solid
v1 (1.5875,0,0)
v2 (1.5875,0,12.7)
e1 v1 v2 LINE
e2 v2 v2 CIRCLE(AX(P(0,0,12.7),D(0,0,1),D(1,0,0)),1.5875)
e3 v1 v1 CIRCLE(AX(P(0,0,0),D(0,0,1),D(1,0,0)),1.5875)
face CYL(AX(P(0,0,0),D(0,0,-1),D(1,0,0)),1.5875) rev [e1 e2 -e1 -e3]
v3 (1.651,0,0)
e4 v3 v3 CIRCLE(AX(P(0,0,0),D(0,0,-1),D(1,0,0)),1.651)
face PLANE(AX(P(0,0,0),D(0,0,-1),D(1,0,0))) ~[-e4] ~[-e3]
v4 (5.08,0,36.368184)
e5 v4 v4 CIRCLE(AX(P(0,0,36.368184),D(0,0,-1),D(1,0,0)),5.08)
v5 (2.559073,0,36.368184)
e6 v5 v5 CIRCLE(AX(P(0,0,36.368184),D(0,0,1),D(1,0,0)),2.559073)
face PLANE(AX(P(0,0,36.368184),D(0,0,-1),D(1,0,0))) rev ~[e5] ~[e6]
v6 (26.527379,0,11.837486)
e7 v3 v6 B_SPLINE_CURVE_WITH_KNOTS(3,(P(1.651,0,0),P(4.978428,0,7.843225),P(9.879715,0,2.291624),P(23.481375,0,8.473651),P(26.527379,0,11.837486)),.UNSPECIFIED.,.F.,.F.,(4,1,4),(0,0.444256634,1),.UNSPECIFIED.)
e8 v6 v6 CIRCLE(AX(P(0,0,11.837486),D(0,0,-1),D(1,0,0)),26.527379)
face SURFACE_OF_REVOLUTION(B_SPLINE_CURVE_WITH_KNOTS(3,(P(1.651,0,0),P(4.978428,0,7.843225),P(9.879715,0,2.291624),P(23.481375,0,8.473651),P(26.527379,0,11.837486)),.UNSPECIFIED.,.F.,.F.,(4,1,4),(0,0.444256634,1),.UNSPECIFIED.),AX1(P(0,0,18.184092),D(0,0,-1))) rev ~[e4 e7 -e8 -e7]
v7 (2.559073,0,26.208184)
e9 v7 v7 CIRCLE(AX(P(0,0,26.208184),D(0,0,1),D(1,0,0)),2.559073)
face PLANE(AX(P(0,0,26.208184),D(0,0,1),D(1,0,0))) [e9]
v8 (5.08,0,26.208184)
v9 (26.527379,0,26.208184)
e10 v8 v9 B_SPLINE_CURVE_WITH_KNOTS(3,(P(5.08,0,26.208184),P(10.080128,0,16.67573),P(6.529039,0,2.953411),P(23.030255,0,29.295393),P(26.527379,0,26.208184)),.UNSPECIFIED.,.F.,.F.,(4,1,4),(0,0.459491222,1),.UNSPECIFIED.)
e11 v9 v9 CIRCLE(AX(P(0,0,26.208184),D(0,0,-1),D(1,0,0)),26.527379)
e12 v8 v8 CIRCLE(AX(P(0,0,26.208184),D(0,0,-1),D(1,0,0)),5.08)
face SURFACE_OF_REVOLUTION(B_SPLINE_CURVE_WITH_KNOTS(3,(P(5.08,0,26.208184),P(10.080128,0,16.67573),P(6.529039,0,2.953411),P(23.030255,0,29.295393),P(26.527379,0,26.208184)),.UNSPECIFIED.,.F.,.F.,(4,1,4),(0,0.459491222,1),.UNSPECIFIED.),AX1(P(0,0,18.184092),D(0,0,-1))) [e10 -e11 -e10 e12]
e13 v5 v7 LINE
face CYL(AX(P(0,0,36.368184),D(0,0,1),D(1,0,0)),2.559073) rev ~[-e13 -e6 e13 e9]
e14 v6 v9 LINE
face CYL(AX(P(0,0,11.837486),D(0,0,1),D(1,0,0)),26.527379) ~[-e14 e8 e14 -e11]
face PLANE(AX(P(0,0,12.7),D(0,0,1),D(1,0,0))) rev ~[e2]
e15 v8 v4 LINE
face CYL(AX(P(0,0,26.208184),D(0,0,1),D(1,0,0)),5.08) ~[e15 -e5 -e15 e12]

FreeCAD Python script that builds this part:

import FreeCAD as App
import Part
import Sketcher

V = App.Vector
Q = App.Units.Quantity

doc = App.newDocument("Part")
body = doc.addObject("PartDesign::Body", "Body")

sketch1 = doc.addObject("Sketcher::SketchObject", "Sketch")
body.addObject(sketch1)
sketch1.AttachmentSupport = (doc.XZ_Plane, [""])
sketch1.MapMode = "FlatFace"
sketch1.addGeometry([
    Part.LineSegment(V(0, 36.368184, 0), V(0, 0, 0)),
    Part.LineSegment(V(0, 0, 0), V(1.651, 0, 0)),
    Part.BSplineCurve([V(1.651, 0, 0), V(4.978428, 7.843225, 0), V(9.879715, 2.291624, 0), V(23.481375, 8.473651, 0), V(26.527379, 11.837486, 0)], [4, 1, 4], [0, 0.444256634, 1], False, 3, [1, 1, 1, 1, 1], False),
    Part.LineSegment(V(26.527379, 11.837486, 0), V(26.527379, 26.208184, 0)),
    Part.BSplineCurve([V(5.08, 26.208184, 0), V(10.080128, 16.67573, 0), V(6.529039, 2.953411, 0), V(23.030255, 29.295393, 0), V(26.527379, 26.208184, 0)], [4, 1, 4], [0, 0.459491222, 1], False, 3, [1, 1, 1, 1, 1], False),
    Part.LineSegment(V(5.08, 26.208184, 0), V(5.08, 36.368184, 0)),
    Part.LineSegment(V(5.08, 36.368184, 0), V(0, 36.368184, 0)),
], False)
sketch1.addConstraint([
    Sketcher.Constraint("Block", 2),
    Sketcher.Constraint("Block", 4),
    Sketcher.Constraint("Coincident", 0, 2, 1, 1),
    Sketcher.Constraint("Coincident", 1, 2, 2, 1),
    Sketcher.Constraint("Coincident", 2, 2, 3, 1),
    Sketcher.Constraint("Coincident", 3, 2, 4, 2),
    Sketcher.Constraint("Coincident", 4, 1, 5, 1),
    Sketcher.Constraint("Coincident", 5, 2, 6, 1),
    Sketcher.Constraint("Coincident", 6, 2, 0, 1),
    Sketcher.Constraint("Vertical", 0),
    Sketcher.Constraint("Horizontal", 1),
    Sketcher.Constraint("Vertical", 5),
    Sketcher.Constraint("Horizontal", 6),
    Sketcher.Constraint("PointOnObject", 6, 2, -2),
    Sketcher.Constraint("DistanceY", 5, 1, 5, 2, Q("0.4 in")),
])
revolution = doc.addObject("PartDesign::Revolution", "Revolution")
body.addObject(revolution)
revolution.Profile = sketch1
revolution.ReferenceAxis = (sketch1, ["V_Axis"])
revolution.Angle = 360

sketch2 = doc.addObject("Sketcher::SketchObject", "Sketch001")
body.addObject(sketch2)
sketch2.AttachmentSupport = (doc.XY_Plane, [""])
sketch2.MapMode = "FlatFace"
sketch2.AttachmentOffset = App.Placement(V(0, 0, 36.368184), App.Rotation())
sketch2.addGeometry(Part.Circle(V(0, 0, 0), V(0, 0, 1), 2.6), False)
sketch2.addConstraint([
    Sketcher.Constraint("Coincident", 0, 3, -1, 1),
    Sketcher.Constraint("Diameter", 0, Q("5.118147 mm")),
])
pocket1 = doc.addObject("PartDesign::Pocket", "Pocket")
body.addObject(pocket1)
pocket1.Profile = sketch2
pocket1.Length = Q("0.4 in")

sketch3 = doc.addObject("Sketcher::SketchObject", "Sketch002")
body.addObject(sketch3)
sketch3.AttachmentSupport = (doc.XY_Plane, [""])
sketch3.MapMode = "FlatFace"
sketch3.addGeometry(Part.Circle(V(0, 0, 0), V(0, 0, 1), 1.6), False)
sketch3.addConstraint([
    Sketcher.Constraint("Coincident", 0, 3, -1, 1),
    Sketcher.Constraint("Diameter", 0, Q("0.125 in")),
])
pocket2 = doc.addObject("PartDesign::Pocket", "Pocket001")
body.addObject(pocket2)
pocket2.Profile = sketch3
pocket2.Length = Q("0.5 in")
pocket2.Reversed = True

doc.recompute()
